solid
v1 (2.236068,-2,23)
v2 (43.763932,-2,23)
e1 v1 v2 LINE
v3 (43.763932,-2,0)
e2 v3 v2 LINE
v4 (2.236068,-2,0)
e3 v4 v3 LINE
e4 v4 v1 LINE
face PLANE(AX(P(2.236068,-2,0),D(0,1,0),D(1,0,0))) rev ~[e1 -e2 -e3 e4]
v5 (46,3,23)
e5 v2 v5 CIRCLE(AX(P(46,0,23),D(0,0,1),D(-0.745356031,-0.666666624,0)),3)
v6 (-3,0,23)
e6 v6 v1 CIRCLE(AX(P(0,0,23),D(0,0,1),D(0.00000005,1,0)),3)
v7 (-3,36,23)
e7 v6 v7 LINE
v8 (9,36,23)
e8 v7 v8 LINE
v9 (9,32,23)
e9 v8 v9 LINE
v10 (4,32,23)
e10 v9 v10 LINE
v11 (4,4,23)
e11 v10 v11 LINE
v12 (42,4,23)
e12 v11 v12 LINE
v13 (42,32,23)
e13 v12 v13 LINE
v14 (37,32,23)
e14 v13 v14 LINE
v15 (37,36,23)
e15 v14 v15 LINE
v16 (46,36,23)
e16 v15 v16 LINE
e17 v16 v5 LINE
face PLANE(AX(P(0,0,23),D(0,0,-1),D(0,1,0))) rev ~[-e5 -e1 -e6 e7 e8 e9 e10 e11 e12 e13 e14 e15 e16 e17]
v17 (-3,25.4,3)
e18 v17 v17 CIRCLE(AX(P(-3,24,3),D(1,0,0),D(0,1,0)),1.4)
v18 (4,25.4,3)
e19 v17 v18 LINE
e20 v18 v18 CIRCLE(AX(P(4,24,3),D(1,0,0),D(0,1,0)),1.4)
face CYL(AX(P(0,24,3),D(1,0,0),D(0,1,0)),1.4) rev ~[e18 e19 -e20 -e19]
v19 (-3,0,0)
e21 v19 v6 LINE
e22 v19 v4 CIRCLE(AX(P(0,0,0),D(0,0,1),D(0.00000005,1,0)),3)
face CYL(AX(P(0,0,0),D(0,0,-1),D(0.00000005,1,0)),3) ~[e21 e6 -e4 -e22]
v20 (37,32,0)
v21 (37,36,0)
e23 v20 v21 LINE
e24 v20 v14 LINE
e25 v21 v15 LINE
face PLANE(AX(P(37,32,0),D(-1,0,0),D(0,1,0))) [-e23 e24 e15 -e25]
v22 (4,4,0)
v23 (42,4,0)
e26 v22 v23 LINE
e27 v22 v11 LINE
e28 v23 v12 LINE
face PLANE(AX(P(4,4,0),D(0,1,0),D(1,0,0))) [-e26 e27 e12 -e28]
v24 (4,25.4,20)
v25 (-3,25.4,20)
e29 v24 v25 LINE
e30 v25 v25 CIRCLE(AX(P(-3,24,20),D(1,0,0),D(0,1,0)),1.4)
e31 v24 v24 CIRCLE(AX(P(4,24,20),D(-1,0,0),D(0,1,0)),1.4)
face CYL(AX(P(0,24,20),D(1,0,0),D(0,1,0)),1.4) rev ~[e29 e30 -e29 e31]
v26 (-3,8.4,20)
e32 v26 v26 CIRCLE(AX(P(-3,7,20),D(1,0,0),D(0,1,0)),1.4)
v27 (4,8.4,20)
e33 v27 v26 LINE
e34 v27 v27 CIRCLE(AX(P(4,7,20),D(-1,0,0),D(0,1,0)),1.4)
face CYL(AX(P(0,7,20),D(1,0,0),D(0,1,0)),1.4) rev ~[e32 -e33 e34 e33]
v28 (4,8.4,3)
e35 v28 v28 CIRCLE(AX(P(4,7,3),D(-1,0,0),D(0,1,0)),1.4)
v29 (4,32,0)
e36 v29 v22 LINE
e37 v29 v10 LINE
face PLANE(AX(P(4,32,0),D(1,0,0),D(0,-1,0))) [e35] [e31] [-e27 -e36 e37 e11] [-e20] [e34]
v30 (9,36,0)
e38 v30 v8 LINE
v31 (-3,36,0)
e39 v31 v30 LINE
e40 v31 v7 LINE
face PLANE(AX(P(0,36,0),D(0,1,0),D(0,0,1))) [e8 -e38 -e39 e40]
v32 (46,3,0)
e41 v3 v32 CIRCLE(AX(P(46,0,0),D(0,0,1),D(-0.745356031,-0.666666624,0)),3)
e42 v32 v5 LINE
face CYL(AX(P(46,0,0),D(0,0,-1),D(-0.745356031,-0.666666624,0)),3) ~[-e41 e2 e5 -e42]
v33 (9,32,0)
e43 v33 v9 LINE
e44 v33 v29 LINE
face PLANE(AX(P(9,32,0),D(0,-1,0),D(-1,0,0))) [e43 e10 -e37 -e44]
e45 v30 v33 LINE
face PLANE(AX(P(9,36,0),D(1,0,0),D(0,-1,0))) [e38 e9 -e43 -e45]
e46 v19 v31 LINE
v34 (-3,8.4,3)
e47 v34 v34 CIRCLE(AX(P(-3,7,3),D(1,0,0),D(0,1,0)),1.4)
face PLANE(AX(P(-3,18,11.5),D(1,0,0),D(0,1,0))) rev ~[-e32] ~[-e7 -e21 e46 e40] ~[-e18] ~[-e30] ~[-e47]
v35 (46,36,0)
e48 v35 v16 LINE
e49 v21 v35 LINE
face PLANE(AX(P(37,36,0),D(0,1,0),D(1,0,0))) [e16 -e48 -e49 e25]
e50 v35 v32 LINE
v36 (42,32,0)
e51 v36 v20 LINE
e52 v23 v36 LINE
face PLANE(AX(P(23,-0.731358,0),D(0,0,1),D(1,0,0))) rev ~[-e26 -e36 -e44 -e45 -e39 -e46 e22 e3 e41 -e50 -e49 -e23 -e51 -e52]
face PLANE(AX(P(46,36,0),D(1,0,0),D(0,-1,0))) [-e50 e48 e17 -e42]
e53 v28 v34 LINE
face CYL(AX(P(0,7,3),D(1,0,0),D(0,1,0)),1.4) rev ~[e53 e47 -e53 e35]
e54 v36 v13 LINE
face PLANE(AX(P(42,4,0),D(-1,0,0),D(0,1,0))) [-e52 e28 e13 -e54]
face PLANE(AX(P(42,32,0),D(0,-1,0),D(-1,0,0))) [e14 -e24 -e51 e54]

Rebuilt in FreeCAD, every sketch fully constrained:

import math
import FreeCAD as App
import Part
import Sketcher

V = App.Vector

doc = App.newDocument("Part")
params = doc.addObject("Spreadsheet::Sheet", "Params")
for row, (alias, value) in enumerate([
    ("sketch1_width", "38 mm"),
    ("sketch1_width2", "5 mm"),
    ("sketch1_width3", "9 mm"),
    ("sketch1_height", "28 mm"),
    ("sketch1_height2", "4 mm"),
    ("pad1_length", "23 mm"),
    ("sketch2_radius", "3 mm"),
    ("sketch2_width", "46 mm"),
    ("pad2_length", "23 mm"),
    ("sketch3_width", "36 mm"),
    ("sketch3_height", "23 mm"),
    ("pad3_length", "3 mm"),
    ("sketch4_diameter", "2.8 mm"),
    ("pocket1_length", "10 mm"),
], start=1):
    params.set(f"A{row}", alias)
    params.set(f"B{row}", "=" + value)
    params.setAlias(f"B{row}", alias)

body = doc.addObject("PartDesign::Body", "Body")

# Sketch on XY plane
sketch1 = doc.addObject("Sketcher::SketchObject", "Sketch")
body.addObject(sketch1)
sketch1.AttachmentSupport = (doc.XY_Plane, [""])
sketch1.MapMode = "FlatFace"
sketch1.addGeometry(Part.LineSegment(V(42, 4, 0), V(4, 4, 0)), False)
sketch1.addGeometry(Part.LineSegment(V(4, 4, 0), V(4, 32, 0)), False)
sketch1.addGeometry(Part.LineSegment(V(4, 32, 0), V(9, 32, 0)), False)
sketch1.addGeometry(Part.LineSegment(V(9, 32, 0), V(9, 36, 0)), False)
sketch1.addGeometry(Part.LineSegment(V(9, 36, 0), V(0, 36, 0)), False)
sketch1.addGeometry(Part.LineSegment(V(0, 36, 0), V(0, 0, 0)), False)
sketch1.addGeometry(Part.LineSegment(V(0, 0, 0), V(46, 0, 0)), False)
sketch1.addGeometry(Part.LineSegment(V(46, 0, 0), V(46, 36, 0)), False)
sketch1.addGeometry(Part.LineSegment(V(46, 36, 0), V(37, 36, 0)), False)
sketch1.addGeometry(Part.LineSegment(V(37, 36, 0), V(37, 32, 0)), False)
sketch1.addGeometry(Part.LineSegment(V(37, 32, 0), V(42, 32, 0)), False)
sketch1.addGeometry(Part.LineSegment(V(42, 32, 0), V(42, 4, 0)), False)
sketch1.addConstraint(Sketcher.Constraint("Coincident", 0, 2, 1, 1))
sketch1.addConstraint(Sketcher.Constraint("Coincident", 1, 2, 2, 1))
sketch1.addConstraint(Sketcher.Constraint("Coincident", 2, 2, 3, 1))
sketch1.addConstraint(Sketcher.Constraint("Coincident", 3, 2, 4, 1))
sketch1.addConstraint(Sketcher.Constraint("Coincident", 4, 2, 5, 1))
sketch1.addConstraint(Sketcher.Constraint("Coincident", 5, 2, 6, 1))
sketch1.addConstraint(Sketcher.Constraint("Coincident", 6, 2, 7, 1))
sketch1.addConstraint(Sketcher.Constraint("Coincident", 7, 2, 8, 1))
sketch1.addConstraint(Sketcher.Constraint("Coincident", 8, 2, 9, 1))
sketch1.addConstraint(Sketcher.Constraint("Coincident", 9, 2, 10, 1))
sketch1.addConstraint(Sketcher.Constraint("Coincident", 10, 2, 11, 1))
sketch1.addConstraint(Sketcher.Constraint("Coincident", 11, 2, 0, 1))
sketch1.addConstraint(Sketcher.Constraint("Horizontal", 0))
sketch1.addConstraint(Sketcher.Constraint("Vertical", 1))
sketch1.addConstraint(Sketcher.Constraint("Horizontal", 2))
sketch1.addConstraint(Sketcher.Constraint("Vertical", 3))
sketch1.addConstraint(Sketcher.Constraint("Horizontal", 4))
sketch1.addConstraint(Sketcher.Constraint("Vertical", 5))
sketch1.addConstraint(Sketcher.Constraint("Horizontal", 6))
sketch1.addConstraint(Sketcher.Constraint("Vertical", 7))
sketch1.addConstraint(Sketcher.Constraint("Horizontal", 8))
sketch1.addConstraint(Sketcher.Constraint("Vertical", 9))
sketch1.addConstraint(Sketcher.Constraint("Horizontal", 10))
sketch1.addConstraint(Sketcher.Constraint("Vertical", 11))
sketch1.addConstraint(Sketcher.Constraint("Coincident", 5, 2, -1, 1))
sketch1.addConstraint(Sketcher.Constraint("Horizontal", 4, 2, 7, 2))
sketch1.addConstraint(Sketcher.Constraint("Horizontal", 2, 2, 9, 2))
sketch1.addConstraint(Sketcher.Constraint("Equal", 4, 8))
sketch1.addConstraint(Sketcher.Constraint("Equal", 2, 10))
sketch1.addConstraint(Sketcher.Constraint("DistanceX", 0, 2, 0, 1, 38.0))
sketch1.addConstraint(Sketcher.Constraint("DistanceX", 2, 1, 2, 2, 5.0))
sketch1.addConstraint(Sketcher.Constraint("DistanceX", 4, 2, 4, 1, 9.0))
sketch1.addConstraint(Sketcher.Constraint("DistanceY", 1, 1, 1, 2, 28.0))
sketch1.addConstraint(Sketcher.Constraint("DistanceY", 3, 1, 3, 2, 4.0))
sketch1.addConstraint(Sketcher.Constraint("DistanceY", 5, 2, 5, 1, 36.0))
sketch1.setExpression("Constraints[29]", "Params.sketch1_width")
sketch1.setExpression("Constraints[30]", "Params.sketch1_width2")
sketch1.setExpression("Constraints[31]", "Params.sketch1_width3")
sketch1.setExpression("Constraints[32]", "Params.sketch1_height")
sketch1.setExpression("Constraints[33]", "Params.sketch1_height2")
pad1 = doc.addObject("PartDesign::Pad", "Pad")
body.addObject(pad1)
pad1.Profile = sketch1
pad1.setExpression("Length", "Params.pad1_length")

# Sketch on XY plane
sketch2 = doc.addObject("Sketcher::SketchObject", "Sketch001")
body.addObject(sketch2)
sketch2.AttachmentSupport = (doc.XY_Plane, [""])
sketch2.MapMode = "FlatFace"
sketch2.addGeometry(Part.ArcOfCircle(Part.Circle(V(46, 0, 0), V(0, 0, 1), 3), math.radians(-138), math.radians(90)), False)
sketch2.addGeometry(Part.LineSegment(V(46, 3, 0), V(46, 0, 0)), False)
sketch2.addGeometry(Part.LineSegment(V(46, 0, 0), V(0, 0, 0)), False)
sketch2.addGeometry(Part.LineSegment(V(0, 0, 0), V(0, 3, 0)), False)
sketch2.addGeometry(Part.ArcOfCircle(Part.Circle(V(0, 0, 0), V(0, 0, 1), 3), math.radians(90), math.radians(318)), False)
sketch2.addGeometry(Part.LineSegment(V(2.2, -2, 0), V(43.8, -2, 0)), False)
sketch2.addConstraint(Sketcher.Constraint("Coincident", 0, 2, 1, 1))
sketch2.addConstraint(Sketcher.Constraint("Coincident", 1, 2, 2, 1))
sketch2.addConstraint(Sketcher.Constraint("Coincident", 2, 2, 3, 1))
sketch2.addConstraint(Sketcher.Constraint("Coincident", 3, 2, 4, 1))
sketch2.addConstraint(Sketcher.Constraint("Coincident", 4, 2, 5, 1))
sketch2.addConstraint(Sketcher.Constraint("Coincident", 5, 2, 0, 1))
sketch2.addConstraint(Sketcher.Constraint("Vertical", 1))
sketch2.addConstraint(Sketcher.Constraint("Horizontal", 2))
sketch2.addConstraint(Sketcher.Constraint("Vertical", 3))
sketch2.addConstraint(Sketcher.Constraint("Horizontal", 5))
sketch2.addConstraint(Sketcher.Constraint("Coincident", 4, 3, -1, 1))
sketch2.addConstraint(Sketcher.Constraint("Coincident", 2, 2, -1, 1))
sketch2.addConstraint(Sketcher.Constraint("Coincident", 1, 2, 0, 3))
sketch2.addConstraint(Sketcher.Constraint("Equal", 0, 4))
sketch2.addConstraint(Sketcher.Constraint("Radius", 0, 3.0))
sketch2.addConstraint(Sketcher.Constraint("DistanceX", 2, 2, 2, 1, 46.0))
sketch2.addConstraint(Sketcher.Constraint("DistanceY", 4, 2, -1, 1, 2.0))
sketch2.setExpression("Constraints[14]", "Params.sketch2_radius")
sketch2.setExpression("Constraints[15]", "Params.sketch2_width")
pad2 = doc.addObject("PartDesign::Pad", "Pad001")
body.addObject(pad2)
pad2.Profile = sketch2
pad2.setExpression("Length", "Params.pad2_length")

# Sketch on YZ plane
sketch3 = doc.addObject("Sketcher::SketchObject", "Sketch002")
body.addObject(sketch3)
sketch3.AttachmentSupport = (doc.YZ_Plane, [""])
sketch3.MapMode = "FlatFace"
sketch3.addGeometry(Part.LineSegment(V(0, 23, 0), V(0, 0, 0)), False)
sketch3.addGeometry(Part.LineSegment(V(0, 0, 0), V(36, 0, 0)), False)
sketch3.addGeometry(Part.LineSegment(V(36, 0, 0), V(36, 23, 0)), False)
sketch3.addGeometry(Part.LineSegment(V(36, 23, 0), V(0, 23, 0)), False)
sketch3.addConstraint(Sketcher.Constraint("Coincident", 0, 2, 1, 1))
sketch3.addConstraint(Sketcher.Constraint("Coincident", 1, 2, 2, 1))
sketch3.addConstraint(Sketcher.Constraint("Coincident", 2, 2, 3, 1))
sketch3.addConstraint(Sketcher.Constraint("Coincident", 3, 2, 0, 1))
sketch3.addConstraint(Sketcher.Constraint("Vertical", 0))
sketch3.addConstraint(Sketcher.Constraint("Horizontal", 1))
sketch3.addConstraint(Sketcher.Constraint("Vertical", 2))
sketch3.addConstraint(Sketcher.Constraint("Horizontal", 3))
sketch3.addConstraint(Sketcher.Constraint("Coincident", 0, 2, -1, 1))
sketch3.addConstraint(Sketcher.Constraint("DistanceX", 1, 1, 1, 2, 36.0))
sketch3.addConstraint(Sketcher.Constraint("DistanceY", 0, 2, 0, 1, 23.0))
sketch3.setExpression("Constraints[9]", "Params.sketch3_width")
sketch3.setExpression("Constraints[10]", "Params.sketch3_height")
pad3 = doc.addObject("PartDesign::Pad", "Pad002")
body.addObject(pad3)
pad3.Profile = sketch3
pad3.setExpression("Length", "Params.pad3_length")
pad3.Reversed = True

# Sketch on YZ plane
sketch4 = doc.addObject("Sketcher::SketchObject", "Sketch003")
body.addObject(sketch4)
sketch4.AttachmentSupport = (doc.YZ_Plane, [""])
sketch4.MapMode = "FlatFace"
sketch4.addGeometry(Part.Circle(V(7, 20, 0), V(0, 0, 1), 1.4), False)
sketch4.addGeometry(Part.Circle(V(24, 20, 0), V(0, 0, 1), 1.4), False)
sketch4.addGeometry(Part.Circle(V(7, 3, 0), V(0, 0, 1), 1.4), False)
sketch4.addGeometry(Part.Circle(V(24, 3, 0), V(0, 0, 1), 1.4), False)
sketch4.addConstraint(Sketcher.Constraint("Equal", 0, 1))
sketch4.addConstraint(Sketcher.Constraint("Equal", 1, 2))
sketch4.addConstraint(Sketcher.Constraint("Equal", 2, 3))
sketch4.addConstraint(Sketcher.Constraint("Horizontal", 0, 3, 1, 3))
sketch4.addConstraint(Sketcher.Constraint("Horizontal", 2, 3, 3, 3))
sketch4.addConstraint(Sketcher.Constraint("Vertical", 0, 3, 2, 3))
sketch4.addConstraint(Sketcher.Constraint("Vertical", 1, 3, 3, 3))
sketch4.addConstraint(Sketcher.Constraint("Diameter", 0, 2.8))
sketch4.addConstraint(Sketcher.Constraint("DistanceX", -1, 1, 0, 3, 7.0))
sketch4.addConstraint(Sketcher.Constraint("DistanceY", -1, 1, 0, 3, 20.0))
sketch4.addConstraint(Sketcher.Constraint("DistanceX", -1, 1, 1, 3, 24.0))
sketch4.addConstraint(Sketcher.Constraint("DistanceY", -1, 1, 2, 3, 3.0))
sketch4.setExpression("Constraints[7]", "Params.sketch4_diameter")
pocket1 = doc.addObject("PartDesign::Pocket", "Pocket")
body.addObject(pocket1)
pocket1.Profile = sketch4
pocket1.setExpression("Length", "Params.pocket1_length")
pocket1.Midplane = True

doc.recompute()
